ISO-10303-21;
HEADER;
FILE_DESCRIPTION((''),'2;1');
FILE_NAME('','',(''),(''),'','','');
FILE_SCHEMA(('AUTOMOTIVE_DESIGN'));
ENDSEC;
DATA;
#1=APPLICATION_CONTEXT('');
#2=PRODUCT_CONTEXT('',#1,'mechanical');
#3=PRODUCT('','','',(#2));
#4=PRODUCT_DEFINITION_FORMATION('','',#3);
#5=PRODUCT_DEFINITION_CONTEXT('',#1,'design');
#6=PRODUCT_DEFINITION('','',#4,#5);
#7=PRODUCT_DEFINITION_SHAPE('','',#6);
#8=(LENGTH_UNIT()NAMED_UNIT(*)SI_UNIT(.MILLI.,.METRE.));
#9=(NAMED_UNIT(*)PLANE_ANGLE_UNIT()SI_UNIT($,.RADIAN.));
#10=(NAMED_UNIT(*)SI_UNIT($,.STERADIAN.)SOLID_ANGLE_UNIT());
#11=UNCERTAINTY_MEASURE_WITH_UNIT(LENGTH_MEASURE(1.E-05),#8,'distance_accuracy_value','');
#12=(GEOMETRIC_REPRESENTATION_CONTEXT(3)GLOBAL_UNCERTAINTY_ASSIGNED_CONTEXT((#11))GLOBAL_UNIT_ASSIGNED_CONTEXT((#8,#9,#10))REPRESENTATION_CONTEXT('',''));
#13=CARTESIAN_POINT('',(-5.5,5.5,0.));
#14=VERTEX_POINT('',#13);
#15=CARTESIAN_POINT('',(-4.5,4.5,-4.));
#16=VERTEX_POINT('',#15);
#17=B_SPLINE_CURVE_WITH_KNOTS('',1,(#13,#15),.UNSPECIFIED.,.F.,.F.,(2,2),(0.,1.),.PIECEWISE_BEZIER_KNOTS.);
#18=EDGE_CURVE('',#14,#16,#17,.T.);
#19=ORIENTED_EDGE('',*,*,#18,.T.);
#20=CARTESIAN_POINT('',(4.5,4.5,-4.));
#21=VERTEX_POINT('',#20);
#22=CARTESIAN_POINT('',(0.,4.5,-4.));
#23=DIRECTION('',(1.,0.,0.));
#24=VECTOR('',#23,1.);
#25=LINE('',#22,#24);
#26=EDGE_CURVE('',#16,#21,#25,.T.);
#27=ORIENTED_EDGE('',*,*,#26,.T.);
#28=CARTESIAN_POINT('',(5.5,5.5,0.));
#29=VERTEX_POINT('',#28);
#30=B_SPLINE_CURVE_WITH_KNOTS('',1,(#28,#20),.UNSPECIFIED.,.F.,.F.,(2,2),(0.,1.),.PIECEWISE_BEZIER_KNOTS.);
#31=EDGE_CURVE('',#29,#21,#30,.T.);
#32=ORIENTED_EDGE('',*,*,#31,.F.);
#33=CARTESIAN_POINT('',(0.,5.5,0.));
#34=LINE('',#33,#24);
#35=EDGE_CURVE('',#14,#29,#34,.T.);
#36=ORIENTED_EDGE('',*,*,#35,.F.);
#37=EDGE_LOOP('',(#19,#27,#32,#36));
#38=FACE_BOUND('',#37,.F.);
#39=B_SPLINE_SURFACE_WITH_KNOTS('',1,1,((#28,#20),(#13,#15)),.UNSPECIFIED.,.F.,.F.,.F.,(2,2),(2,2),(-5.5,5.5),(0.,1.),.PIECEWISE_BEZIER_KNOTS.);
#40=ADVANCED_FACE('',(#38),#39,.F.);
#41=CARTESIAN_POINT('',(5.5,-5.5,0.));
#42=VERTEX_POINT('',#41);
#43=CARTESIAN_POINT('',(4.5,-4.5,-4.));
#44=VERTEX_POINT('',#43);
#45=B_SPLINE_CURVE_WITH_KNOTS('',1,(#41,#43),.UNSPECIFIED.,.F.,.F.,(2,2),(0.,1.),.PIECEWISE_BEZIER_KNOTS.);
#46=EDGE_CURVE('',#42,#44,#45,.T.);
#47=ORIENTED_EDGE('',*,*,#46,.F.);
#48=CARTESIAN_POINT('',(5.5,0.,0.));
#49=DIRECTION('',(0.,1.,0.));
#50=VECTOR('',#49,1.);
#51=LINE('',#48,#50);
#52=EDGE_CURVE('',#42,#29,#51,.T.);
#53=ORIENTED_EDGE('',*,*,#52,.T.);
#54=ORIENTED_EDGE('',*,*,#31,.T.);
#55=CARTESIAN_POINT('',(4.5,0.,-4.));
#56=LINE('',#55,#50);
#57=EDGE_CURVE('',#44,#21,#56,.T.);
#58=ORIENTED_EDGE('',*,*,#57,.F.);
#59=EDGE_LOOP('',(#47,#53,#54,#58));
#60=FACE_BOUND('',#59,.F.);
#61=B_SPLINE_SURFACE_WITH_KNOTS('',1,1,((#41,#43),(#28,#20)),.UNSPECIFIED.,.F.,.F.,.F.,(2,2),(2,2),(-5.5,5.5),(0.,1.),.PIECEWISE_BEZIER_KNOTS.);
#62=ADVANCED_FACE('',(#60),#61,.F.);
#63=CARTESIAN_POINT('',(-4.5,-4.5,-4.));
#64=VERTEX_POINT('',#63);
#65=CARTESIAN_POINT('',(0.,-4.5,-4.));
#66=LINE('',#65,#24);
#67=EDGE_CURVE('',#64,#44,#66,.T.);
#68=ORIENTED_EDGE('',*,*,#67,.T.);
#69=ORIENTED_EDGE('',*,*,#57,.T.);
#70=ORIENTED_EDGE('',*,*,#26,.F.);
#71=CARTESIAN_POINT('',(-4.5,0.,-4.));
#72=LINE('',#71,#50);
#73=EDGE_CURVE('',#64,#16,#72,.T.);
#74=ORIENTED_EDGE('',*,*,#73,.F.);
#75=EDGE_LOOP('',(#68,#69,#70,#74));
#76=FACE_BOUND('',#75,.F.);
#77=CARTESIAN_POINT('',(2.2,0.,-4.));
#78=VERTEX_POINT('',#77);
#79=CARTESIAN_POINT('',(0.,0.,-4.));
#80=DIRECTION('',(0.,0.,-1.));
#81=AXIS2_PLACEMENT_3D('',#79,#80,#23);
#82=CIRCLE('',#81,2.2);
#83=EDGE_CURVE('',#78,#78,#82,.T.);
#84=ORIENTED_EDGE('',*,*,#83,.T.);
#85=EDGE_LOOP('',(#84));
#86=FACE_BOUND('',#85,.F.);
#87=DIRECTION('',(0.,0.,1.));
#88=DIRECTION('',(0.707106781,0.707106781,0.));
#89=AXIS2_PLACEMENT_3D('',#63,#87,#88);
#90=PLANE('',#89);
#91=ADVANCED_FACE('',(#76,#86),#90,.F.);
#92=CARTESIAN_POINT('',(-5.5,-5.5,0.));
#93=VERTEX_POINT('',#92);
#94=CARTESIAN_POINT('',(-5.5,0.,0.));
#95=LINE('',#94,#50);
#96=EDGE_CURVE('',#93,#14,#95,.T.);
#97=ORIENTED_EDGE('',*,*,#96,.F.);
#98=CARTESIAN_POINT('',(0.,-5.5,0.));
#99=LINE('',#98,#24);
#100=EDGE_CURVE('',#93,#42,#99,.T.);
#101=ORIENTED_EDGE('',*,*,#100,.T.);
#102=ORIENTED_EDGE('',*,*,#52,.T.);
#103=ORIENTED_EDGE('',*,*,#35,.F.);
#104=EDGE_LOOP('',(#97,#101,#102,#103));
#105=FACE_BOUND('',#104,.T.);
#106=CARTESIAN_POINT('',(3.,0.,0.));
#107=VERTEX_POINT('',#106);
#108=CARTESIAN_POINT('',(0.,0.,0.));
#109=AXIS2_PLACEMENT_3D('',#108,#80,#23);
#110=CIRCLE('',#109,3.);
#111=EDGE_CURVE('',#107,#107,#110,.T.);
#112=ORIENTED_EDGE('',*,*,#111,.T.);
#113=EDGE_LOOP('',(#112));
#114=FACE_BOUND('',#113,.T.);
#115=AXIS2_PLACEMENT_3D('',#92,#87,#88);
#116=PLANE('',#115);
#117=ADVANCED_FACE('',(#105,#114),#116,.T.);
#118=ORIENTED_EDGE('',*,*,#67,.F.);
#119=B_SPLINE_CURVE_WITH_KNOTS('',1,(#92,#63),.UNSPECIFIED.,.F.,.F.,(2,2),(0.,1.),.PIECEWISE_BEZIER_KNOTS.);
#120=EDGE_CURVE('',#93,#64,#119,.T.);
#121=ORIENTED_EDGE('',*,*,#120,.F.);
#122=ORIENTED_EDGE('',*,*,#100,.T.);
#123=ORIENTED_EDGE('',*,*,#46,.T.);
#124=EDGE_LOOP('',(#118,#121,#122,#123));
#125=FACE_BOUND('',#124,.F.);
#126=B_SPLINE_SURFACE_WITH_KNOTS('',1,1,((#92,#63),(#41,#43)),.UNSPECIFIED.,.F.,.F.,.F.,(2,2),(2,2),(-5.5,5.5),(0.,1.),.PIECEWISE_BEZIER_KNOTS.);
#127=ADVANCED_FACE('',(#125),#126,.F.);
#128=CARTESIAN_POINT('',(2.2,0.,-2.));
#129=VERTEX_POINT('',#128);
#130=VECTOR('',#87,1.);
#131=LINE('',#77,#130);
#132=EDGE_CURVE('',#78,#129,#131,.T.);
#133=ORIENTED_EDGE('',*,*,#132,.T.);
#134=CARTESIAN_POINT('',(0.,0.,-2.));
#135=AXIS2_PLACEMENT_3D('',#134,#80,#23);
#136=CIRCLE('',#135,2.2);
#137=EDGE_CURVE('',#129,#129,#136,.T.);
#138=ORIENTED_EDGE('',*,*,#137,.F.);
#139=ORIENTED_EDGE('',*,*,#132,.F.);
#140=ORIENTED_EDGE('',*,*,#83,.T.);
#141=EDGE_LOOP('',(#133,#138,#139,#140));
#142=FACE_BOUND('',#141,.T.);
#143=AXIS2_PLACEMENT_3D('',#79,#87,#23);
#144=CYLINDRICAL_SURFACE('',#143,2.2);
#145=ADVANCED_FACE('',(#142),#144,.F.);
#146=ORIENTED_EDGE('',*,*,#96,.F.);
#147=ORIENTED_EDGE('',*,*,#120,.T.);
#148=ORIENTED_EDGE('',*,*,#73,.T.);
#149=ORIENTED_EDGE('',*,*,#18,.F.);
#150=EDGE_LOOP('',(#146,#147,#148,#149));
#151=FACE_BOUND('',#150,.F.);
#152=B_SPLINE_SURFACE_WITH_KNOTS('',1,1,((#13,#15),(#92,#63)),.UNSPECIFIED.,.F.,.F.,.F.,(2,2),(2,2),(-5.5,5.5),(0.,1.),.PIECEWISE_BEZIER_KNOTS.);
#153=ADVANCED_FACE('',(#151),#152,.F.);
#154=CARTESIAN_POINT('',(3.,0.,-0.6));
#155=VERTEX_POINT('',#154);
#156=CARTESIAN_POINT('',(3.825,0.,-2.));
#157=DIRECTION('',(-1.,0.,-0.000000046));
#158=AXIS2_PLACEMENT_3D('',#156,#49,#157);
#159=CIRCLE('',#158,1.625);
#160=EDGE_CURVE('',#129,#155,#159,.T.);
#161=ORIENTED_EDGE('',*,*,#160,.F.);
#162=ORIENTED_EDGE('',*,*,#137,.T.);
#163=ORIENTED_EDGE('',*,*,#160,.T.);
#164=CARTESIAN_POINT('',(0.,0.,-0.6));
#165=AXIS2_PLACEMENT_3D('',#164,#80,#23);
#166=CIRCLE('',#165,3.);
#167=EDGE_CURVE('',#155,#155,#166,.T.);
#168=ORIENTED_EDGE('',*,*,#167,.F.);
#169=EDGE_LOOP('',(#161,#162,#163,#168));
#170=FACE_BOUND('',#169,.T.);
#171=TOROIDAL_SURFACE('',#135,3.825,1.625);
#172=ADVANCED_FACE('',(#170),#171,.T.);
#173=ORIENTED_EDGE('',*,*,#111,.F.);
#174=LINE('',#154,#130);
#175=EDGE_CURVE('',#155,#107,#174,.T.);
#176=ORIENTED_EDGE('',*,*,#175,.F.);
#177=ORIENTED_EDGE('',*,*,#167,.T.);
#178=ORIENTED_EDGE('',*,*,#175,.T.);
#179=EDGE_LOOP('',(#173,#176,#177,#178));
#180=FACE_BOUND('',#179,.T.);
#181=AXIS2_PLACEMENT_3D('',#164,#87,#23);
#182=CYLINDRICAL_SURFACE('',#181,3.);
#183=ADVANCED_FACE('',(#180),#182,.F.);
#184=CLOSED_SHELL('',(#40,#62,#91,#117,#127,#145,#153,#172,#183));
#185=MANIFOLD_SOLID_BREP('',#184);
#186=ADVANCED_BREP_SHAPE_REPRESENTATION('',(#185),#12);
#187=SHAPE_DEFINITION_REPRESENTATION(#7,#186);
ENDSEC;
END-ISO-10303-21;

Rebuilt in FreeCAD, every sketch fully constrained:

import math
import FreeCAD as App
import Part
import Sketcher
from FreeCAD import Vector


def add_polygon(sketch, points):
    """Adds a closed chain of lines whose ends are joined by coincident constraints."""
    first, n = sketch.GeometryCount, len(points)
    for a, b in zip(points, points[1:] + points[:1]):
        sketch.addGeometry(Part.LineSegment(App.Vector(*a, 0), App.Vector(*b, 0)), False)
    for i in range(n):
        sketch.addConstraint(Sketcher.Constraint("Coincident", first + i, 2, first + (i + 1) % n, 1))

doc = App.newDocument("Part")
body = doc.addObject("PartDesign::Body", "Body")

sketch1 = body.newObject("Sketcher::SketchObject", "Sketch")
sketch1.AttachmentSupport = (doc.getObject("XY_Plane"), [""])
sketch1.MapMode = "FlatFace"
add_polygon(sketch1, [(-6, 6), (-6, -6), (6, -6), (6, 6)])
sketch1.addConstraint([
    Sketcher.Constraint("Vertical", 0),
    Sketcher.Constraint("Horizontal", 1),
    Sketcher.Constraint("Vertical", 2),
    Sketcher.Constraint("Horizontal", 3),
    Sketcher.Constraint("Symmetric", 0, 2, 2, 2, -1, 1),
    Sketcher.Constraint("Equal", 3, 0),
    Sketcher.Constraint("DistanceX", 1, 1, 1, 2, 11.0),
])

sketch2 = body.newObject("Sketcher::SketchObject", "Sketch001")
sketch2.AttachmentSupport = (doc.getObject("XY_Plane"), [""])
sketch2.MapMode = "FlatFace"
sketch2.AttachmentOffset = App.Placement(Vector(0, 0, -4), App.Rotation())
add_polygon(sketch2, [(-4, 4), (-4, -4), (4, -4), (4, 4)])
sketch2.addConstraint([
    Sketcher.Constraint("Vertical", 0),
    Sketcher.Constraint("Horizontal", 1),
    Sketcher.Constraint("Vertical", 2),
    Sketcher.Constraint("Horizontal", 3),
    Sketcher.Constraint("Symmetric", 0, 2, 2, 2, -1, 1),
    Sketcher.Constraint("Equal", 3, 0),
    Sketcher.Constraint("DistanceX", 1, 1, 1, 2, 9.0),
])

additiveloft = body.newObject("PartDesign::AdditiveLoft", "AdditiveLoft")
additiveloft.Profile = sketch1
additiveloft.Sections = [sketch2]

sketch3 = body.newObject("Sketcher::SketchObject", "Sketch002")
sketch3.AttachmentSupport = (doc.getObject("XZ_Plane"), [""])
sketch3.MapMode = "FlatFace"
sketch3.addGeometry([
    Part.LineSegment(Vector(0, -4, 0), Vector(2.2, -4, 0)),
    Part.LineSegment(Vector(2.2, -4, 0), Vector(2.2, -2, 0)),
    Part.ArcOfCircle(Part.Circle(Vector(3.8, -2, 0), Vector(0, 0, 1), 1.6), math.radians(121), math.radians(180)),
    Part.LineSegment(Vector(3, -0.6, 0), Vector(3, 0, 0)),
    Part.LineSegment(Vector(3, 0, 0), Vector(0, 0, 0)),
    Part.LineSegment(Vector(0, 0, 0), Vector(0, -4, 0)),
], False)
sketch3.addConstraint([
    Sketcher.Constraint("Coincident", 0, 2, 1, 1),
    Sketcher.Constraint("Tangent", 1, 2, 2, 2),
    Sketcher.Constraint("Coincident", 2, 1, 3, 1),
    Sketcher.Constraint("Coincident", 3, 2, 4, 1),
    Sketcher.Constraint("Coincident", 4, 2, 5, 1),
    Sketcher.Constraint("Coincident", 5, 2, 0, 1),
    Sketcher.Constraint("Horizontal", 0),
    Sketcher.Constraint("Vertical", 1),
    Sketcher.Constraint("Vertical", 3),
    Sketcher.Constraint("Horizontal", 4),
    Sketcher.Constraint("Vertical", 5),
    Sketcher.Constraint("Coincident", 4, 2, -1, 1),
    Sketcher.Constraint("DistanceX", 4, 2, 4, 1, 3.0),
    Sketcher.Constraint("DistanceY", 1, 1, 1, 2, 2.0),
    Sketcher.Constraint("DistanceY", 5, 2, 5, 1, 4.0),
    Sketcher.Constraint("DistanceX", 0, 1, 0, 2, 2.2),
    Sketcher.Constraint("DistanceY", 3, 1, 3, 2, 0.6),
])
groove = body.newObject("PartDesign::Groove", "Groove")
groove.Profile = sketch3
groove.ReferenceAxis = (sketch3, ["V_Axis"])
groove.Angle = 360

doc.recompute()
